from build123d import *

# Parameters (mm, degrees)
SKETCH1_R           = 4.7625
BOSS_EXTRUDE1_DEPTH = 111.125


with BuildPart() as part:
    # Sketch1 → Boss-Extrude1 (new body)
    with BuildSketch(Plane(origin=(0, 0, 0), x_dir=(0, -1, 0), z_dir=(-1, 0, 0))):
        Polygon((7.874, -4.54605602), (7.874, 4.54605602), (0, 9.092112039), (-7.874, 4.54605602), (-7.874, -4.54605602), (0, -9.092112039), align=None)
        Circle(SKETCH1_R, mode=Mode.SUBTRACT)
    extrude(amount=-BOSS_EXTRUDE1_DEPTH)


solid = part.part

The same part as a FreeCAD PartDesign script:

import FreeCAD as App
import Part
import Sketcher
from FreeCAD import Vector
Q = App.Units.Quantity

doc = App.newDocument("Part")
params = doc.addObject("Spreadsheet::Sheet", "Params")
for row, (alias, value) in enumerate([
    ("sketch1_diameter", "0.375 in"),
    ("pad1_length", "4.375 in"),
], start=1):
    params.set(f"A{row}", alias)
    params.set(f"B{row}", "=" + value)
    params.setAlias(f"B{row}", alias)

body = doc.addObject("PartDesign::Body", "Body")

sketch1 = doc.addObject("Sketcher::SketchObject", "Sketch")
body.addObject(sketch1)
sketch1.AttachmentSupport = (doc.YZ_Plane, [""])
sketch1.MapMode = "FlatFace"
sketch1.addGeometry([
    Part.LineSegment(Vector(-7.874, -4.546056, 0), Vector(-7.874, 4.546056, 0)),
    Part.LineSegment(Vector(-7.874, 4.546056, 0), Vector(0, 9.092112, 0)),
    Part.LineSegment(Vector(0, 9.092112, 0), Vector(7.874, 4.546056, 0)),
    Part.LineSegment(Vector(7.874, 4.546056, 0), Vector(7.874, -4.546056, 0)),
    Part.LineSegment(Vector(7.874, -4.546056, 0), Vector(0, -9.092112, 0)),
    Part.LineSegment(Vector(0, -9.092112, 0), Vector(-7.874, -4.546056, 0)),
    Part.Circle(Vector(0, 0, 0), Vector(0, 0, 1), 4.7625),
], False)
sketch1.addConstraint([
    Sketcher.Constraint("Coincident", 0, 2, 1, 1),
    Sketcher.Constraint("Coincident", 1, 2, 2, 1),
    Sketcher.Constraint("Coincident", 2, 2, 3, 1),
    Sketcher.Constraint("Coincident", 3, 2, 4, 1),
    Sketcher.Constraint("Coincident", 4, 2, 5, 1),
    Sketcher.Constraint("Coincident", 5, 2, 0, 1),
    Sketcher.Constraint("Vertical", 0),
    Sketcher.Constraint("Vertical", 3),
    Sketcher.Constraint("Coincident", 6, 3, -1, 1),
    Sketcher.Constraint("Symmetric", 0, 2, 3, 2, -1, 1),
    Sketcher.Constraint("Symmetric", 1, 2, 4, 2, -1, 1),
    Sketcher.Constraint("PointOnObject", 1, 2, -2),
    Sketcher.Constraint("Parallel", 2, 5),
    Sketcher.Constraint("Horizontal", 0, 2, 2, 2),
    Sketcher.Constraint("Diameter", 6, Q("0.375 in")),
    Sketcher.Constraint("Angle", 1, Q("30 deg")),
    Sketcher.Constraint("DistanceX", 0, 2, -1, 1, Q("0.31 in")),
    Sketcher.Constraint("DistanceY", 0, 1, 0, 2, Q("9.092112 mm")),
])
sketch1.setExpression("Constraints[14]", "Params.sketch1_diameter")
pad1 = doc.addObject("PartDesign::Pad", "Pad")
body.addObject(pad1)
pad1.Profile = sketch1
pad1.setExpression("Length", "Params.pad1_length")

doc.recompute()
